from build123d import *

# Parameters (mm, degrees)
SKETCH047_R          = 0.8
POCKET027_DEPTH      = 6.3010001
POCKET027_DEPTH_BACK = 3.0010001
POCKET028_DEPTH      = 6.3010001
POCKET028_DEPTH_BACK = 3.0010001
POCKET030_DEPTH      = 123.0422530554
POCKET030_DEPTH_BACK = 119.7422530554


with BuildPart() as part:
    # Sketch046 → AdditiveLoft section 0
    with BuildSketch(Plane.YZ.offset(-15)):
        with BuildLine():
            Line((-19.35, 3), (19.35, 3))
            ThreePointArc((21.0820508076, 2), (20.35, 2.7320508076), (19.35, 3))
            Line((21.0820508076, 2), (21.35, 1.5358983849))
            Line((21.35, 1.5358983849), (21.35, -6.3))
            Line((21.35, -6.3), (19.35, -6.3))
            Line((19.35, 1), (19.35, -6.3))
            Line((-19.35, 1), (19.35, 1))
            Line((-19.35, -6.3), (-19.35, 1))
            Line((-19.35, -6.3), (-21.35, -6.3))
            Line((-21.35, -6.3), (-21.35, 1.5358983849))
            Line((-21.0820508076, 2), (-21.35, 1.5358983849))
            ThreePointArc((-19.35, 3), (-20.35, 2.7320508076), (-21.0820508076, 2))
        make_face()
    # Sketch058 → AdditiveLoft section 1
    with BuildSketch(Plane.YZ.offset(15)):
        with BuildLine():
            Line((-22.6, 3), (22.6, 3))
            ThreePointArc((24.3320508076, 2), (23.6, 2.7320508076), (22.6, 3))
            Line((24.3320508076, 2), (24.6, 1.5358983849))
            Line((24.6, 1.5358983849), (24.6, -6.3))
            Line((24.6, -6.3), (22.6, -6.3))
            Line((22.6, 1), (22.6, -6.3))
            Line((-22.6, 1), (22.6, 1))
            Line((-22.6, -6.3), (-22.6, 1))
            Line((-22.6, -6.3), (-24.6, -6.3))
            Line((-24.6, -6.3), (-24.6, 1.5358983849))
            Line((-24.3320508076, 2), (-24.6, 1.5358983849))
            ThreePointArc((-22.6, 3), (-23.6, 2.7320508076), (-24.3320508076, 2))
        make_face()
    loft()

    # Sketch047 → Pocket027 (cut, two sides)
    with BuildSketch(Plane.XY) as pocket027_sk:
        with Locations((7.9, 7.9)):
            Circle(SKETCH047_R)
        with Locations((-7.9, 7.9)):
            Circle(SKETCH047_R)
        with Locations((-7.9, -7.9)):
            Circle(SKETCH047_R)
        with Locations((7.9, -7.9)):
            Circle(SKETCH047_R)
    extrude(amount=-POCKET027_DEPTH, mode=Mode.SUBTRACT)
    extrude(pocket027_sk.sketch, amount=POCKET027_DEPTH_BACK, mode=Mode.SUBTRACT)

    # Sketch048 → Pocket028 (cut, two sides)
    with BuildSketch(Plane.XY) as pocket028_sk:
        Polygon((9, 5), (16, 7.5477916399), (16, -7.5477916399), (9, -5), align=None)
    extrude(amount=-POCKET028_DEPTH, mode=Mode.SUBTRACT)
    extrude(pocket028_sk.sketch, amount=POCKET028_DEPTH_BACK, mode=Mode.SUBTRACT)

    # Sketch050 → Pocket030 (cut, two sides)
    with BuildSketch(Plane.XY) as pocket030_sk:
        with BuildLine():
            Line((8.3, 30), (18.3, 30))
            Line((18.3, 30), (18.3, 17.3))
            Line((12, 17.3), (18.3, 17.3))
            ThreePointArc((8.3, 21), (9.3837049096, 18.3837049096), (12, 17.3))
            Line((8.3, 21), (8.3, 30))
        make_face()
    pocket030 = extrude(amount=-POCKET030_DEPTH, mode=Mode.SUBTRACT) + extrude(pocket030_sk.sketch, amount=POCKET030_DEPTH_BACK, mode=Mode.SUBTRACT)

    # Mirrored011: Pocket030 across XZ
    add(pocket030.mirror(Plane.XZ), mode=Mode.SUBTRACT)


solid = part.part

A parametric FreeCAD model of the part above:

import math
import FreeCAD as App
import Part
import Sketcher
Q = App.Units.Quantity

doc = App.newDocument("Part")
body = doc.addObject("PartDesign::Body", "Body")

# Sketch on YZ plane
sketch1 = body.newObject("Sketcher::SketchObject", "Sketch")
sketch1.AttachmentSupport = (doc.getObject("YZ_Plane"), [""])
sketch1.MapMode = "FlatFace"
sketch1.AttachmentOffset = App.Placement(App.Vector(0, 0, -15), App.Rotation())
sketch1.addGeometry(Part.LineSegment(App.Vector(19.4, 3, 0), App.Vector(-19.4, 3, 0)), False)
sketch1.addGeometry(Part.ArcOfCircle(Part.Circle(App.Vector(-19.4, 1, 0), App.Vector(0, 0, 1), 2), math.radians(90), math.radians(150)), False)
sketch1.addGeometry(Part.LineSegment(App.Vector(-21.1, 2, 0), App.Vector(-21.4, 1.5, 0)), False)
sketch1.addGeometry(Part.LineSegment(App.Vector(-21.4, 1.5, 0), App.Vector(-21.4, -6.3, 0)), False)
sketch1.addGeometry(Part.LineSegment(App.Vector(-21.4, -6.3, 0), App.Vector(-19.4, -6.3, 0)), False)
sketch1.addGeometry(Part.LineSegment(App.Vector(-19.4, -6.3, 0), App.Vector(-19.4, 1, 0)), False)
sketch1.addGeometry(Part.LineSegment(App.Vector(-19.4, 1, 0), App.Vector(19.4, 1, 0)), False)
sketch1.addGeometry(Part.LineSegment(App.Vector(19.4, 1, 0), App.Vector(19.4, -6.3, 0)), False)
sketch1.addGeometry(Part.LineSegment(App.Vector(19.4, -6.3, 0), App.Vector(21.4, -6.3, 0)), False)
sketch1.addGeometry(Part.LineSegment(App.Vector(21.4, -6.3, 0), App.Vector(21.4, 1.5, 0)), False)
sketch1.addGeometry(Part.LineSegment(App.Vector(21.4, 1.5, 0), App.Vector(21.1, 2, 0)), False)
sketch1.addGeometry(Part.ArcOfCircle(Part.Circle(App.Vector(19.4, 1, 0), App.Vector(0, 0, 1), 2), math.radians(30), math.radians(90)), False)
sketch1.addConstraint(Sketcher.Constraint("Tangent", 0, 2, 1, 1))
sketch1.addConstraint(Sketcher.Constraint("Tangent", 1, 2, 2, 1))
sketch1.addConstraint(Sketcher.Constraint("Coincident", 2, 2, 3, 1))
sketch1.addConstraint(Sketcher.Constraint("Coincident", 3, 2, 4, 1))
sketch1.addConstraint(Sketcher.Constraint("Coincident", 4, 2, 5, 1))
sketch1.addConstraint(Sketcher.Constraint("Coincident", 5, 2, 6, 1))
sketch1.addConstraint(Sketcher.Constraint("Coincident", 6, 2, 7, 1))
sketch1.addConstraint(Sketcher.Constraint("Coincident", 7, 2, 8, 1))
sketch1.addConstraint(Sketcher.Constraint("Coincident", 8, 2, 9, 1))
sketch1.addConstraint(Sketcher.Constraint("Coincident", 9, 2, 10, 1))
sketch1.addConstraint(Sketcher.Constraint("Tangent", 10, 2, 11, 1))
sketch1.addConstraint(Sketcher.Constraint("Tangent", 11, 2, 0, 1))
sketch1.addConstraint(Sketcher.Constraint("Horizontal", 0))
sketch1.addConstraint(Sketcher.Constraint("Vertical", 3))
sketch1.addConstraint(Sketcher.Constraint("Horizontal", 4))
sketch1.addConstraint(Sketcher.Constraint("Vertical", 5))
sketch1.addConstraint(Sketcher.Constraint("Horizontal", 6))
sketch1.addConstraint(Sketcher.Constraint("Vertical", 7))
sketch1.addConstraint(Sketcher.Constraint("Horizontal", 8))
sketch1.addConstraint(Sketcher.Constraint("Vertical", 9))
sketch1.addConstraint(Sketcher.Constraint("Coincident", 5, 2, 1, 3))
sketch1.addConstraint(Sketcher.Constraint("Coincident", 6, 2, 11, 3))
sketch1.addConstraint(Sketcher.Constraint("Symmetric", 4, 2, 7, 2, -2))
sketch1.addConstraint(Sketcher.Constraint("Symmetric", 2, 2, 9, 2, -2))
sketch1.addConstraint(Sketcher.Constraint("Radius", 1, Q("2 mm")))
sketch1.addConstraint(Sketcher.Constraint("DistanceX", 4, 1, 4, 2, Q("2 mm")))
sketch1.addConstraint(Sketcher.Constraint("Angle", 2, Q("-120 deg")))
sketch1.addConstraint(Sketcher.Constraint("DistanceX", 0, 2, 0, 1, Q("38.7 mm")))
sketch1.addConstraint(Sketcher.Constraint("DistanceY", 5, 1, 5, 2, Q("7.3 mm")))
sketch1.addConstraint(Sketcher.Constraint("DistanceY", -1, 1, 1, 3, Q("1 mm")))

# Sketch on YZ plane
sketch2 = body.newObject("Sketcher::SketchObject", "Sketch001")
sketch2.AttachmentSupport = (doc.getObject("YZ_Plane"), [""])
sketch2.MapMode = "FlatFace"
sketch2.AttachmentOffset = App.Placement(App.Vector(0, 0, 15), App.Rotation())
sketch2.addGeometry(Part.LineSegment(App.Vector(22.6, 3, 0), App.Vector(-22.6, 3, 0)), False)
sketch2.addGeometry(Part.ArcOfCircle(Part.Circle(App.Vector(-22.6, 1, 0), App.Vector(0, 0, 1), 2), math.radians(90), math.radians(150)), False)
sketch2.addGeometry(Part.LineSegment(App.Vector(-24.3, 2, 0), App.Vector(-24.6, 1.5, 0)), False)
sketch2.addGeometry(Part.LineSegment(App.Vector(-24.6, 1.5, 0), App.Vector(-24.6, -6.3, 0)), False)
sketch2.addGeometry(Part.LineSegment(App.Vector(-24.6, -6.3, 0), App.Vector(-22.6, -6.3, 0)), False)
sketch2.addGeometry(Part.LineSegment(App.Vector(-22.6, -6.3, 0), App.Vector(-22.6, 1, 0)), False)
sketch2.addGeometry(Part.LineSegment(App.Vector(-22.6, 1, 0), App.Vector(22.6, 1, 0)), False)
sketch2.addGeometry(Part.LineSegment(App.Vector(22.6, 1, 0), App.Vector(22.6, -6.3, 0)), False)
sketch2.addGeometry(Part.LineSegment(App.Vector(22.6, -6.3, 0), App.Vector(24.6, -6.3, 0)), False)
sketch2.addGeometry(Part.LineSegment(App.Vector(24.6, -6.3, 0), App.Vector(24.6, 1.5, 0)), False)
sketch2.addGeometry(Part.LineSegment(App.Vector(24.6, 1.5, 0), App.Vector(24.3, 2, 0)), False)
sketch2.addGeometry(Part.ArcOfCircle(Part.Circle(App.Vector(22.6, 1, 0), App.Vector(0, 0, 1), 2), math.radians(30), math.radians(90)), False)
sketch2.addConstraint(Sketcher.Constraint("Tangent", 0, 2, 1, 1))
sketch2.addConstraint(Sketcher.Constraint("Tangent", 1, 2, 2, 1))
sketch2.addConstraint(Sketcher.Constraint("Coincident", 2, 2, 3, 1))
sketch2.addConstraint(Sketcher.Constraint("Coincident", 3, 2, 4, 1))
sketch2.addConstraint(Sketcher.Constraint("Coincident", 4, 2, 5, 1))
sketch2.addConstraint(Sketcher.Constraint("Coincident", 5, 2, 6, 1))
sketch2.addConstraint(Sketcher.Constraint("Coincident", 6, 2, 7, 1))
sketch2.addConstraint(Sketcher.Constraint("Coincident", 7, 2, 8, 1))
sketch2.addConstraint(Sketcher.Constraint("Coincident", 8, 2, 9, 1))
sketch2.addConstraint(Sketcher.Constraint("Coincident", 9, 2, 10, 1))
sketch2.addConstraint(Sketcher.Constraint("Tangent", 10, 2, 11, 1))
sketch2.addConstraint(Sketcher.Constraint("Tangent", 11, 2, 0, 1))
sketch2.addConstraint(Sketcher.Constraint("Horizontal", 0))
sketch2.addConstraint(Sketcher.Constraint("Vertical", 3))
sketch2.addConstraint(Sketcher.Constraint("Horizontal", 4))
sketch2.addConstraint(Sketcher.Constraint("Vertical", 5))
sketch2.addConstraint(Sketcher.Constraint("Horizontal", 6))
sketch2.addConstraint(Sketcher.Constraint("Vertical", 7))
sketch2.addConstraint(Sketcher.Constraint("Horizontal", 8))
sketch2.addConstraint(Sketcher.Constraint("Vertical", 9))
sketch2.addConstraint(Sketcher.Constraint("Coincident", 5, 2, 1, 3))
sketch2.addConstraint(Sketcher.Constraint("Coincident", 6, 2, 11, 3))
sketch2.addConstraint(Sketcher.Constraint("Symmetric", 4, 2, 7, 2, -2))
sketch2.addConstraint(Sketcher.Constraint("Symmetric", 2, 2, 9, 2, -2))
sketch2.addConstraint(Sketcher.Constraint("Radius", 1, Q("2 mm")))
sketch2.addConstraint(Sketcher.Constraint("DistanceX", 4, 1, 4, 2, Q("2 mm")))
sketch2.addConstraint(Sketcher.Constraint("Angle", 2, Q("-120 deg")))
sketch2.addConstraint(Sketcher.Constraint("DistanceX", 0, 2, 0, 1, Q("45.2 mm")))
sketch2.addConstraint(Sketcher.Constraint("DistanceY", 5, 1, 5, 2, Q("7.3 mm")))
sketch2.addConstraint(Sketcher.Constraint("DistanceY", -1, 1, 1, 3, Q("1 mm")))

additiveloft = body.newObject("PartDesign::AdditiveLoft", "AdditiveLoft")
additiveloft.Profile = sketch1
additiveloft.Sections = [sketch2]

# Sketch on XY plane
sketch3 = body.newObject("Sketcher::SketchObject", "Sketch002")
sketch3.AttachmentSupport = (doc.getObject("XY_Plane"), [""])
sketch3.MapMode = "FlatFace"
sketch3.addGeometry(Part.Circle(App.Vector(7.9, 7.9, 0), App.Vector(0, 0, 1), 0.8), False)
sketch3.addGeometry(Part.Circle(App.Vector(-7.9, 7.9, 0), App.Vector(0, 0, 1), 0.8), False)
sketch3.addGeometry(Part.Circle(App.Vector(-7.9, -7.9, 0), App.Vector(0, 0, 1), 0.8), False)
sketch3.addGeometry(Part.Circle(App.Vector(7.9, -7.9, 0), App.Vector(0, 0, 1), 0.8), False)
sketch3.addConstraint(Sketcher.Constraint("Equal", 0, 1))
sketch3.addConstraint(Sketcher.Constraint("Equal", 1, 2))
sketch3.addConstraint(Sketcher.Constraint("Equal", 2, 3))
sketch3.addConstraint(Sketcher.Constraint("Symmetric", 0, 3, 2, 3, -1, 1))
sketch3.addConstraint(Sketcher.Constraint("Symmetric", 1, 3, 3, 3, -1, 1))
sketch3.addConstraint(Sketcher.Constraint("Symmetric", 0, 3, 1, 3, -2))
sketch3.addConstraint(Sketcher.Constraint("Diameter", 0, Q("1.6 mm")))
sketch3.addConstraint(Sketcher.Constraint("DistanceX", -1, 1, 0, 3, Q("7.9 mm")))
sketch3.addConstraint(Sketcher.Constraint("DistanceY", -1, 1, 0, 3, Q("7.9 mm")))
pocket1 = body.newObject("PartDesign::Pocket", "Pocket")
pocket1.Profile = sketch3
pocket1.Type = "ThroughAll"
pocket1.Midplane = True

# Sketch on XY plane
sketch4 = body.newObject("Sketcher::SketchObject", "Sketch003")
sketch4.AttachmentSupport = (doc.getObject("XY_Plane"), [""])
sketch4.MapMode = "FlatFace"
sketch4.addGeometry(Part.LineSegment(App.Vector(16, 8, 0), App.Vector(9, 5, 0)), False)
sketch4.addGeometry(Part.LineSegment(App.Vector(9, 5, 0), App.Vector(9, -5, 0)), False)
sketch4.addGeometry(Part.LineSegment(App.Vector(9, -5, 0), App.Vector(16, -8, 0)), False)
sketch4.addGeometry(Part.LineSegment(App.Vector(16, -8, 0), App.Vector(16, 8, 0)), False)
sketch4.addConstraint(Sketcher.Constraint("Coincident", 0, 2, 1, 1))
sketch4.addConstraint(Sketcher.Constraint("Coincident", 1, 2, 2, 1))
sketch4.addConstraint(Sketcher.Constraint("Coincident", 2, 2, 3, 1))
sketch4.addConstraint(Sketcher.Constraint("Coincident", 3, 2, 0, 1))
sketch4.addConstraint(Sketcher.Constraint("Vertical", 1))
sketch4.addConstraint(Sketcher.Constraint("Vertical", 3))
sketch4.addConstraint(Sketcher.Constraint("Equal", 0, 2))
sketch4.addConstraint(Sketcher.Constraint("DistanceY", 1, 2, 1, 1, Q("10 mm")))
sketch4.addConstraint(Sketcher.Constraint("Angle", 0, Q("-160 deg")))
sketch4.addConstraint(Sketcher.Constraint("DistanceX", -1, 1, 0, 2, Q("9 mm")))
sketch4.addConstraint(Sketcher.Constraint("DistanceY", -1, 1, 0, 2, Q("5 mm")))
sketch4.addConstraint(Sketcher.Constraint("DistanceX", -1, 1, 2, 2, Q("16 mm")))
pocket2 = body.newObject("PartDesign::Pocket", "Pocket001")
pocket2.Profile = sketch4
pocket2.Type = "ThroughAll"
pocket2.Midplane = True

# Sketch on XY plane
sketch5 = body.newObject("Sketcher::SketchObject", "Sketch004")
sketch5.AttachmentSupport = (doc.getObject("XY_Plane"), [""])
sketch5.MapMode = "FlatFace"
sketch5.addGeometry(Part.LineSegment(App.Vector(18.3, 30, 0), App.Vector(8.3, 30, 0)), False)
sketch5.addGeometry(Part.LineSegment(App.Vector(8.3, 30, 0), App.Vector(8.3, 21, 0)), False)
sketch5.addGeometry(Part.ArcOfCircle(Part.Circle(App.Vector(12, 21, 0), App.Vector(0, 0, 1), 3.7), math.radians(180), math.radians(270)), False)
sketch5.addGeometry(Part.LineSegment(App.Vector(12, 17.3, 0), App.Vector(18.3, 17.3, 0)), False)
sketch5.addGeometry(Part.LineSegment(App.Vector(18.3, 17.3, 0), App.Vector(18.3, 30, 0)), False)
sketch5.addConstraint(Sketcher.Constraint("Coincident", 0, 2, 1, 1))
sketch5.addConstraint(Sketcher.Constraint("Tangent", 1, 2, 2, 1))
sketch5.addConstraint(Sketcher.Constraint("Tangent", 2, 2, 3, 1))
sketch5.addConstraint(Sketcher.Constraint("Coincident", 3, 2, 4, 1))
sketch5.addConstraint(Sketcher.Constraint("Coincident", 4, 2, 0, 1))
sketch5.addConstraint(Sketcher.Constraint("Horizontal", 0))
sketch5.addConstraint(Sketcher.Constraint("Vertical", 1))
sketch5.addConstraint(Sketcher.Constraint("Horizontal", 3))
sketch5.addConstraint(Sketcher.Constraint("Vertical", 4))
sketch5.addConstraint(Sketcher.Constraint("Radius", 2, Q("3.7 mm")))
sketch5.addConstraint(Sketcher.Constraint("DistanceX", 0, 2, 0, 1, Q("10 mm")))
sketch5.addConstraint(Sketcher.Constraint("DistanceY", 1, 2, 1, 1, Q("9 mm")))
sketch5.addConstraint(Sketcher.Constraint("DistanceX", -1, 1, 2, 3, Q("12 mm")))
sketch5.addConstraint(Sketcher.Constraint("DistanceY", -1, 1, 2, 3, Q("21 mm")))
pocket3 = body.newObject("PartDesign::Pocket", "Pocket002")
pocket3.Profile = sketch5
pocket3.Type = "ThroughAll"
pocket3.Midplane = True
doc.recompute()

mirrored = body.newObject("PartDesign::Mirrored", "Mirrored")
mirrored.Originals = [pocket3]
mirrored.MirrorPlane = (doc.getObject("XZ_Plane"), [""])
body.Tip = mirrored

doc.recompute()
